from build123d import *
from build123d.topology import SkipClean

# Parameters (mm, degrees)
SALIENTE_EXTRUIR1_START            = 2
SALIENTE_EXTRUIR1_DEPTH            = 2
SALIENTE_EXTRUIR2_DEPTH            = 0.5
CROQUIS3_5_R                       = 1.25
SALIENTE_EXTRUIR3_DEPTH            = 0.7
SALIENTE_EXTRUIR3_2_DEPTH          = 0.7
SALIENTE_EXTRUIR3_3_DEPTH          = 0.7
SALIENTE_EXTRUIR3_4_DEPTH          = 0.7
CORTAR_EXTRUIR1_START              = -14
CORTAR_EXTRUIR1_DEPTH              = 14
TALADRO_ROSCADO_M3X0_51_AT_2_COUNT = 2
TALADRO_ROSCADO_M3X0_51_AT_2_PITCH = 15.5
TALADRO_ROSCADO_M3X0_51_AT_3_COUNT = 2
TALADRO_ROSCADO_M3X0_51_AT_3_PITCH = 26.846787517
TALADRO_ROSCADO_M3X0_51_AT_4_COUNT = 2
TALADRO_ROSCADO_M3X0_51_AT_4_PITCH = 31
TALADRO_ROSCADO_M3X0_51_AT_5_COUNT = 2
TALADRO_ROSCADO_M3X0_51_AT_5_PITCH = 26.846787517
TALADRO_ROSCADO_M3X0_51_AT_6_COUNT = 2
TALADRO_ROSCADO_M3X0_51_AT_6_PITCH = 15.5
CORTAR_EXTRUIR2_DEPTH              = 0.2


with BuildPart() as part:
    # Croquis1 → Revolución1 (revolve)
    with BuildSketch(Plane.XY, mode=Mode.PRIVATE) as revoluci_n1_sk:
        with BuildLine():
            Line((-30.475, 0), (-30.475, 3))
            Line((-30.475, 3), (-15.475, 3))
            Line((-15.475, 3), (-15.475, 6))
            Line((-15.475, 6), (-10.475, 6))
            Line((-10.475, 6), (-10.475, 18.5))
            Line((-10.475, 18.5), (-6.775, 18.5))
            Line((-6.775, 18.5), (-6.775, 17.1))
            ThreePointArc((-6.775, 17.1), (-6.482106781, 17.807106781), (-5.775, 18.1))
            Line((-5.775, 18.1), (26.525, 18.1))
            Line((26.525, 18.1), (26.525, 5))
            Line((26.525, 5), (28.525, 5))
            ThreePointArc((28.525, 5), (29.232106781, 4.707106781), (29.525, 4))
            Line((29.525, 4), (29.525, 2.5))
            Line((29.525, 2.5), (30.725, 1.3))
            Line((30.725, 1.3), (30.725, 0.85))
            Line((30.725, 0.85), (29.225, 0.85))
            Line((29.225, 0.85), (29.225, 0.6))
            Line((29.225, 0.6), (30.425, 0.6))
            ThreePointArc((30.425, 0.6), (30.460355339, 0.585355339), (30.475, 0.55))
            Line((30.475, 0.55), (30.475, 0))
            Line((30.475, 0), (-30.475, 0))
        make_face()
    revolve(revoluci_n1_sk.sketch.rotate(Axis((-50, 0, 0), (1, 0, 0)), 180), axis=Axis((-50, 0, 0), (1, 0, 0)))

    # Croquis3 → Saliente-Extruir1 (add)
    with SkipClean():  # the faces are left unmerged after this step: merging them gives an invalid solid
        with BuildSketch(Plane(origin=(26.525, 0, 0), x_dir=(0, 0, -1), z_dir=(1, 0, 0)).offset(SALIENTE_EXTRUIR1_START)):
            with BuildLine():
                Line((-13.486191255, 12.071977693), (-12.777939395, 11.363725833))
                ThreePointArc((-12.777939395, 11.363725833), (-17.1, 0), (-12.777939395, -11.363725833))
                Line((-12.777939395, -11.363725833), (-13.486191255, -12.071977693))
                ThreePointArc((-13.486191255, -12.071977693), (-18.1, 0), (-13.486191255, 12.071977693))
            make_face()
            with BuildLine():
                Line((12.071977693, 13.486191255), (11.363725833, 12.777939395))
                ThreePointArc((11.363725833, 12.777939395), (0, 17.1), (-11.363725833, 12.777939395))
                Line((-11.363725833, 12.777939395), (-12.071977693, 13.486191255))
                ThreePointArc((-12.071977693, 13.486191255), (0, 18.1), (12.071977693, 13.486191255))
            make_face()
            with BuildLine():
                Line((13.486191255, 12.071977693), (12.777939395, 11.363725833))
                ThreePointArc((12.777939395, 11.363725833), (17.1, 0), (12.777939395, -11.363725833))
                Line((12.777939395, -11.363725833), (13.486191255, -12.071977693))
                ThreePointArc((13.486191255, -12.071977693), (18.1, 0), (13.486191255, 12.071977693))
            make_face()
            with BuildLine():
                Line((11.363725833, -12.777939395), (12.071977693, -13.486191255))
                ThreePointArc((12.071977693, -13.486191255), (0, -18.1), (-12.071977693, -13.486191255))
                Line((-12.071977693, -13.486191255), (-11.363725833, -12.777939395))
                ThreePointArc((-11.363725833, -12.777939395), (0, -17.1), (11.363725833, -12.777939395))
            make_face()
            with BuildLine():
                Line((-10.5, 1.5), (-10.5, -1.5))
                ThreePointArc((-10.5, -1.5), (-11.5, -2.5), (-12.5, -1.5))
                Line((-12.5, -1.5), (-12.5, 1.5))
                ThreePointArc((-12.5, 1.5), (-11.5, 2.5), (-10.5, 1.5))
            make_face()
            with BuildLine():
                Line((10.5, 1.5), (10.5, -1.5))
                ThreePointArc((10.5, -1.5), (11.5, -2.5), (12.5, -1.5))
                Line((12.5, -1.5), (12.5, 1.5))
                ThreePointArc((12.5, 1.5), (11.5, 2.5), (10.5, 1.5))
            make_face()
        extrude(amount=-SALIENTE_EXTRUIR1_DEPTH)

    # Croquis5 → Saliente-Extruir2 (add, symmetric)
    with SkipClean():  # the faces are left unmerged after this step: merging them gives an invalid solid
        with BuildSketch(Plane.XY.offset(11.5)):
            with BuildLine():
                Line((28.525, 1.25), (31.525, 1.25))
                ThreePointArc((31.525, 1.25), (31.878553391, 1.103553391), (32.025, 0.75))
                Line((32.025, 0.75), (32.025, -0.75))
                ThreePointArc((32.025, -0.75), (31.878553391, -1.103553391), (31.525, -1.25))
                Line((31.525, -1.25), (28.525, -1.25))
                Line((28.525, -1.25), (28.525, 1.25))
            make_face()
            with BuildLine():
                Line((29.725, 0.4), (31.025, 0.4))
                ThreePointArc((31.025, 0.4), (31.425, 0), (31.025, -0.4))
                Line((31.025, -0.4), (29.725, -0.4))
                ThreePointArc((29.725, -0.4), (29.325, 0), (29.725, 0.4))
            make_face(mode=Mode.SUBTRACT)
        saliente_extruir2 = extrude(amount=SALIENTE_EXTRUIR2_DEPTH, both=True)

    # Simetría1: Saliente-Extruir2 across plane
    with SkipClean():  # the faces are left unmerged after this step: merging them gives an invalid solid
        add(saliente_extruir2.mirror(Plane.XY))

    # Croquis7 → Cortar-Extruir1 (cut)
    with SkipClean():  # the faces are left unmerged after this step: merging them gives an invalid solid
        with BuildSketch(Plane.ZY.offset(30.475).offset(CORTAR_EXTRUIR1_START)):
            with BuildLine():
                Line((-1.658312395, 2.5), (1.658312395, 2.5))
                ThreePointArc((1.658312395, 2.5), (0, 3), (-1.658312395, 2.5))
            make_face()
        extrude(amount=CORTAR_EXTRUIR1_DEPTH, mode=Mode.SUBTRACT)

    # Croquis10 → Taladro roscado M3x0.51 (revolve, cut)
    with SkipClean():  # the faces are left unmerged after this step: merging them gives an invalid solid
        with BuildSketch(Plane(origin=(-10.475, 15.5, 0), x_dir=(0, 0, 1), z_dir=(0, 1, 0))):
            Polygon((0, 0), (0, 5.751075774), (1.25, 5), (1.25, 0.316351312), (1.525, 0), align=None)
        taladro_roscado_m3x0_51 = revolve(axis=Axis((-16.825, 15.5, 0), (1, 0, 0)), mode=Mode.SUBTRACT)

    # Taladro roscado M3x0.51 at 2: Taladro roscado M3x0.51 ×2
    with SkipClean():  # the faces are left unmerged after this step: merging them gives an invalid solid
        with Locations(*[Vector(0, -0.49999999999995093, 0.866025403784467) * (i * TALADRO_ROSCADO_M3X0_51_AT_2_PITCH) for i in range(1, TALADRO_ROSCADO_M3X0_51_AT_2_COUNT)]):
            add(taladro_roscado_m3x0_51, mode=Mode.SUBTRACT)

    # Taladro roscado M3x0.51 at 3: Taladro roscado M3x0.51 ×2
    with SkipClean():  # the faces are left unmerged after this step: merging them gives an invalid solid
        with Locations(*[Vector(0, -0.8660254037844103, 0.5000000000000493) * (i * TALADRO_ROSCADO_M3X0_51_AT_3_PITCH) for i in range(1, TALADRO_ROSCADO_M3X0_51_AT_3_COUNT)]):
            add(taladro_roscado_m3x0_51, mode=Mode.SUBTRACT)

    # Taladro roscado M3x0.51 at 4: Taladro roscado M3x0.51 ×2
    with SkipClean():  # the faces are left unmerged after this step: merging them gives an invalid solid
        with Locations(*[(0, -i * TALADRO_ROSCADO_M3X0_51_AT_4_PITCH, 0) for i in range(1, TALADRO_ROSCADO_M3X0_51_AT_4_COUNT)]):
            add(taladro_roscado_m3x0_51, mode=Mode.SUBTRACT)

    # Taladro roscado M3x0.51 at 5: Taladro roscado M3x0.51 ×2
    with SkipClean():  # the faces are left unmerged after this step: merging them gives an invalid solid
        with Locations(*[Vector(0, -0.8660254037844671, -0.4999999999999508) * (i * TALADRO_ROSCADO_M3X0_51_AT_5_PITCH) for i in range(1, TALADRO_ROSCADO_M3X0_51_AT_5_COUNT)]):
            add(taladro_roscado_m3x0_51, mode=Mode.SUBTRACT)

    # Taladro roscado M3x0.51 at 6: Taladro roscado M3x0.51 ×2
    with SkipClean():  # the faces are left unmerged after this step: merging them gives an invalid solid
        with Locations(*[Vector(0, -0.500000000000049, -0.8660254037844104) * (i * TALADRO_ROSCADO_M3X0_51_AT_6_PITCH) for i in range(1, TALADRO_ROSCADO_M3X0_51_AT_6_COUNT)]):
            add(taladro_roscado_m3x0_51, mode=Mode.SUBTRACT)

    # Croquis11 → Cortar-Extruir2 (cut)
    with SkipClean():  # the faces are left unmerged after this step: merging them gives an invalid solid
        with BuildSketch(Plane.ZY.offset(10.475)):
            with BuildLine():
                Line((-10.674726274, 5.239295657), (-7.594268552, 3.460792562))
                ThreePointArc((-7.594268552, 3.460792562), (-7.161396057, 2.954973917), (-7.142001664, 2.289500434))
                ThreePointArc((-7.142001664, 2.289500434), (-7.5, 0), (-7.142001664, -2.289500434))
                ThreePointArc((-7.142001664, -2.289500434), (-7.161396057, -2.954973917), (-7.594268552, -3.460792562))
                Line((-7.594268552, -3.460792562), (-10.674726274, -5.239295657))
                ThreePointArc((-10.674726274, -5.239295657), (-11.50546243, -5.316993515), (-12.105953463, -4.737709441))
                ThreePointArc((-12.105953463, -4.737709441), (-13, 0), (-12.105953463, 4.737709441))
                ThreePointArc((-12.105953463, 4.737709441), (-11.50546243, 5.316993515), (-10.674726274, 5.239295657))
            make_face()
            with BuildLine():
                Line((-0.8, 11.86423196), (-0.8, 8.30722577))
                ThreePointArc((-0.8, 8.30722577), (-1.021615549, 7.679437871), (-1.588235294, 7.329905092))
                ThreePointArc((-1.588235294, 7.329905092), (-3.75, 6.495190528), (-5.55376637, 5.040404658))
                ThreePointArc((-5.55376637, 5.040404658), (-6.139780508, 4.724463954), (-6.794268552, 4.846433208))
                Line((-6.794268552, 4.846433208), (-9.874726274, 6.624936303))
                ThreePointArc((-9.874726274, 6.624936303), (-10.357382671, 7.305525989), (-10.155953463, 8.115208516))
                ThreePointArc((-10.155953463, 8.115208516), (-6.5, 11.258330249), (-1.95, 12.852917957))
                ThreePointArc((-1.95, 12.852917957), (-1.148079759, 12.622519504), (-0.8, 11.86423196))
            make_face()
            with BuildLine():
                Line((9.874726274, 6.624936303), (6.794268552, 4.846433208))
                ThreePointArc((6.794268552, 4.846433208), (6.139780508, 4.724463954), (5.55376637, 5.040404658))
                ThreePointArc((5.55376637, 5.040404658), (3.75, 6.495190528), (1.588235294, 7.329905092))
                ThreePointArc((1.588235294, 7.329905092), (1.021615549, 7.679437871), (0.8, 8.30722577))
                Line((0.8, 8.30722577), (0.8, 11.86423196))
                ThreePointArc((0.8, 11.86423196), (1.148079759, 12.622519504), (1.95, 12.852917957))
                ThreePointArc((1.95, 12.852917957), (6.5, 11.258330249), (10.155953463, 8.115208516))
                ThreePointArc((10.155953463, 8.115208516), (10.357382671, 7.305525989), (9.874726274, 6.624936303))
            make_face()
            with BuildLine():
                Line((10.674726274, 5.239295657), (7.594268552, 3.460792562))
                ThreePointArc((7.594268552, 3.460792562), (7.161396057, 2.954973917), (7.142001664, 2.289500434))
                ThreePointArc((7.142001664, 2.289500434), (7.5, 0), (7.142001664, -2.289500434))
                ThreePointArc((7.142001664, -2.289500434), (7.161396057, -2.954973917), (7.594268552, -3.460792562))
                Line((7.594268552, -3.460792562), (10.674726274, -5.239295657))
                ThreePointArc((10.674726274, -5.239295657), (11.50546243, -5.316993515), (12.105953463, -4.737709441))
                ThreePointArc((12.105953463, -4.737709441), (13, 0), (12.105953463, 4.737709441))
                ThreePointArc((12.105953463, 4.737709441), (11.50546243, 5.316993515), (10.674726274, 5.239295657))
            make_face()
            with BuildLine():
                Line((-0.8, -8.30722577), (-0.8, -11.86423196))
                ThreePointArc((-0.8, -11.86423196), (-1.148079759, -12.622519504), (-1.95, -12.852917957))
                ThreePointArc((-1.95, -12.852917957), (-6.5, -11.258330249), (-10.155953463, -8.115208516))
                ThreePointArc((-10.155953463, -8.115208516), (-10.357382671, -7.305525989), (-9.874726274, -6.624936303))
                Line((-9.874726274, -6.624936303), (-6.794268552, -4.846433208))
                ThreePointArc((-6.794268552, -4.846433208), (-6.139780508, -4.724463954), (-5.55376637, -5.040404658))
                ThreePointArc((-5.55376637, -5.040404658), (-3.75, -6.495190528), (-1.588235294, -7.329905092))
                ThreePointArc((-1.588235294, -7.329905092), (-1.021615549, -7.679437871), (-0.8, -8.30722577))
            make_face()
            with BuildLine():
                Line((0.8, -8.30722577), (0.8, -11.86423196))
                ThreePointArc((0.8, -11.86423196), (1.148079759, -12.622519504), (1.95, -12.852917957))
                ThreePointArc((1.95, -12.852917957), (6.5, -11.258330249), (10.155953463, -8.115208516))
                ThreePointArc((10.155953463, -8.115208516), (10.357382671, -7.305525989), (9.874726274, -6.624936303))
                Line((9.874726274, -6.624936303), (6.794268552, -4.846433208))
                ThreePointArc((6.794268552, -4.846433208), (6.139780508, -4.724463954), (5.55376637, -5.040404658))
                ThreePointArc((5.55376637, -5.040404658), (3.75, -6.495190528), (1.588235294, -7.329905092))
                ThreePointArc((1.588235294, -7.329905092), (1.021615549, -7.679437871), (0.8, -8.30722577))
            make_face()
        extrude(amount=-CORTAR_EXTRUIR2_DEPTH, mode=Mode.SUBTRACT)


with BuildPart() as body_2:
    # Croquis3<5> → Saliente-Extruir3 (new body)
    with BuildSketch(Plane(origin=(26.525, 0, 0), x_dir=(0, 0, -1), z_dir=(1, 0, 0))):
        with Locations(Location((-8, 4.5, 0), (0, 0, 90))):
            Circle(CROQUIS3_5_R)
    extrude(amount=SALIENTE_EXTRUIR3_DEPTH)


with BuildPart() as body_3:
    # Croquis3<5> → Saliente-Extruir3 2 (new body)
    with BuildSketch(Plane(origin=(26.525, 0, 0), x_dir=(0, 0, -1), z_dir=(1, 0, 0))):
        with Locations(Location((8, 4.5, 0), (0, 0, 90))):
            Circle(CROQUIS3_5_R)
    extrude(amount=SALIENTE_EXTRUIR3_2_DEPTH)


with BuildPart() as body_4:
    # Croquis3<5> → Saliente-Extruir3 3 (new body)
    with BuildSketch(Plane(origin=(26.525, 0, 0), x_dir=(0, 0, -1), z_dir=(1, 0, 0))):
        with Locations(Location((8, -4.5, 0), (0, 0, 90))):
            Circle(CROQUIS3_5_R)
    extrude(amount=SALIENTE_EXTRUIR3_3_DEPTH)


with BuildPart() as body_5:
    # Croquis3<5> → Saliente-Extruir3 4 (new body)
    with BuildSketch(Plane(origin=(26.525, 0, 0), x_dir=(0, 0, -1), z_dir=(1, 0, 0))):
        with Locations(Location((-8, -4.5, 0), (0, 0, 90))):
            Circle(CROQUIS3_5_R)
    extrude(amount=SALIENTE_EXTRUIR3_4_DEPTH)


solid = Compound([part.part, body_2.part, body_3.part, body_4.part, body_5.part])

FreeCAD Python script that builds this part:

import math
import FreeCAD as App
import Part
import Sketcher
from FreeCAD import Vector
Q = App.Units.Quantity

doc = App.newDocument("Part")
params = doc.addObject("Spreadsheet::Sheet", "Params")
for row, (alias, value) in enumerate([
    ("sketch1_radius", "1 mm"),
    ("sketch1_width", "2 mm"),
    ("sketch1_width2", "5 mm"),
    ("sketch1_width3", "15 mm"),
    ("sketch1_height", "3 mm"),
    ("revolution_angle", "360 deg"),
    ("sketch2_radius", "1 mm"),
    ("sketch2_radius2", "18.1 mm"),
    ("sketch2_radius3", "17.1 mm"),
    ("sketch2_width", "3 mm"),
    ("pad1_length", "2 mm"),
    ("sketch3_radius", "0.5 mm"),
    ("sketch3_radius2", "0.4 mm"),
    ("sketch3_width", "3 mm"),
    ("sketch3_width2", "1.3 mm"),
    ("sketch3_height", "2.5 mm"),
    ("pad2_length", "1 mm"),
    ("sketch4_radius", "3 mm"),
    ("pocket1_length", "14 mm"),
    ("groove_angle", "360 deg"),
    ("linearpattern_pitch", "15.5 mm"),
    ("linearpattern2_pitch", "26.846788 mm"),
    ("linearpattern3_pitch", "31 mm"),
    ("linearpattern4_pitch", "26.846788 mm"),
    ("linearpattern5_pitch", "15.5 mm"),
    ("sketch6_radius", "1 mm"),
    ("sketch6_radius2", "13 mm"),
    ("sketch6_radius3", "7.5 mm"),
    ("pocket2_length", "0.2 mm"),
    ("sketch7_diameter", "2.5 mm"),
    ("pad3_length", "0.7 mm"),
    ("sketch8_diameter", "2.5 mm"),
    ("pad4_length", "0.7 mm"),
    ("sketch9_diameter", "2.5 mm"),
    ("pad5_length", "0.7 mm"),
    ("sketch10_diameter", "2.5 mm"),
    ("pad6_length", "0.7 mm"),
], start=1):
    params.set(f"A{row}", alias)
    params.set(f"B{row}", "=" + value)
    params.setAlias(f"B{row}", alias)

body = doc.addObject("PartDesign::Body", "Body")

sketch1 = body.newObject("Sketcher::SketchObject", "Sketch")
sketch1.AttachmentSupport = (doc.getObject("XY_Plane"), [""])
sketch1.MapMode = "FlatFace"
sketch1.addGeometry([
    Part.LineSegment(Vector(-30.475, 3, 0), Vector(-30.475, 0, 0)),
    Part.LineSegment(Vector(-30.475, 0, 0), Vector(30.475, 0, 0)),
    Part.LineSegment(Vector(30.475, 0, 0), Vector(30.475, 0.55, 0)),
    Part.ArcOfCircle(Part.Circle(Vector(30.425, 0.55, 0), Vector(0, 0, 1), 0.05), math.radians(0), math.radians(90)),
    Part.LineSegment(Vector(30.425, 0.6, 0), Vector(29.225, 0.6, 0)),
    Part.LineSegment(Vector(29.225, 0.6, 0), Vector(29.225, 0.85, 0)),
    Part.LineSegment(Vector(29.225, 0.85, 0), Vector(30.725, 0.85, 0)),
    Part.LineSegment(Vector(30.725, 0.85, 0), Vector(30.725, 1.3, 0)),
    Part.LineSegment(Vector(30.725, 1.3, 0), Vector(29.525, 2.5, 0)),
    Part.LineSegment(Vector(29.525, 2.5, 0), Vector(29.525, 4, 0)),
    Part.ArcOfCircle(Part.Circle(Vector(28.525, 4, 0), Vector(0, 0, 1), 1), math.radians(0), math.radians(90)),
    Part.LineSegment(Vector(28.525, 5, 0), Vector(26.525, 5, 0)),
    Part.LineSegment(Vector(26.525, 5, 0), Vector(26.525, 18.1, 0)),
    Part.LineSegment(Vector(26.525, 18.1, 0), Vector(-5.775, 18.1, 0)),
    Part.ArcOfCircle(Part.Circle(Vector(-5.775, 17.1, 0), Vector(0, 0, 1), 1), math.radians(90), math.radians(180)),
    Part.LineSegment(Vector(-6.775, 17.1, 0), Vector(-6.775, 18.5, 0)),
    Part.LineSegment(Vector(-6.775, 18.5, 0), Vector(-10.475, 18.5, 0)),
    Part.LineSegment(Vector(-10.475, 18.5, 0), Vector(-10.475, 6, 0)),
    Part.LineSegment(Vector(-10.475, 6, 0), Vector(-15.475, 6, 0)),
    Part.LineSegment(Vector(-15.475, 6, 0), Vector(-15.475, 3, 0)),
    Part.LineSegment(Vector(-15.475, 3, 0), Vector(-30.475, 3, 0)),
], False)
sketch1.addConstraint([
    Sketcher.Constraint("Coincident", 0, 2, 1, 1),
    Sketcher.Constraint("Coincident", 1, 2, 2, 1),
    Sketcher.Constraint("Tangent", 2, 2, 3, 1),
    Sketcher.Constraint("Tangent", 3, 2, 4, 1),
    Sketcher.Constraint("Coincident", 4, 2, 5, 1),
    Sketcher.Constraint("Coincident", 5, 2, 6, 1),
    Sketcher.Constraint("Coincident", 6, 2, 7, 1),
    Sketcher.Constraint("Coincident", 7, 2, 8, 1),
    Sketcher.Constraint("Coincident", 8, 2, 9, 1),
    Sketcher.Constraint("Tangent", 9, 2, 10, 1),
    Sketcher.Constraint("Tangent", 10, 2, 11, 1),
    Sketcher.Constraint("Coincident", 11, 2, 12, 1),
    Sketcher.Constraint("Coincident", 12, 2, 13, 1),
    Sketcher.Constraint("Tangent", 13, 2, 14, 1),
    Sketcher.Constraint("Tangent", 14, 2, 15, 1),
    Sketcher.Constraint("Coincident", 15, 2, 16, 1),
    Sketcher.Constraint("Coincident", 16, 2, 17, 1),
    Sketcher.Constraint("Coincident", 17, 2, 18, 1),
    Sketcher.Constraint("Coincident", 18, 2, 19, 1),
    Sketcher.Constraint("Coincident", 19, 2, 20, 1),
    Sketcher.Constraint("Coincident", 20, 2, 0, 1),
    Sketcher.Constraint("Vertical", 0),
    Sketcher.Constraint("Horizontal", 1),
    Sketcher.Constraint("Vertical", 2),
    Sketcher.Constraint("Horizontal", 4),
    Sketcher.Constraint("Vertical", 5),
    Sketcher.Constraint("Horizontal", 6),
    Sketcher.Constraint("Vertical", 7),
    Sketcher.Constraint("Vertical", 9),
    Sketcher.Constraint("Horizontal", 11),
    Sketcher.Constraint("Vertical", 12),
    Sketcher.Constraint("Horizontal", 13),
    Sketcher.Constraint("Vertical", 15),
    Sketcher.Constraint("Horizontal", 16),
    Sketcher.Constraint("Vertical", 17),
    Sketcher.Constraint("Horizontal", 18),
    Sketcher.Constraint("Vertical", 19),
    Sketcher.Constraint("Horizontal", 20),
    Sketcher.Constraint("Equal", 10, 14),
    Sketcher.Constraint("Symmetric", 0, 2, 1, 2, -1, 1),
    Sketcher.Constraint("Equal", 6, 9),
    Sketcher.Constraint("Equal", 0, 19),
    Sketcher.Constraint("Radius", 10, 1.0),
    Sketcher.Constraint("DistanceX", 11, 2, 11, 1, 2.0),
    Sketcher.Constraint("DistanceX", 18, 2, 18, 1, 5.0),
    Sketcher.Constraint("DistanceX", 20, 2, 20, 1, 15.0),
    Sketcher.Constraint("DistanceY", 0, 2, 0, 1, 3.0),
    Sketcher.Constraint("Angle", 8, Q("135 deg")),
    Sketcher.Constraint("Radius", 3, 0.05),
    Sketcher.Constraint("DistanceX", 4, 2, 4, 1, 1.2),
    Sketcher.Constraint("DistanceX", 6, 1, 6, 2, 1.5),
    Sketcher.Constraint("DistanceX", 13, 2, 13, 1, 32.3),
    Sketcher.Constraint("DistanceX", 16, 2, 16, 1, 3.7),
    Sketcher.Constraint("DistanceY", 12, 1, 12, 2, 13.1),
    Sketcher.Constraint("DistanceY", 15, 1, 15, 2, 1.4),
    Sketcher.Constraint("DistanceY", 17, 2, 17, 1, 12.5),
    Sketcher.Constraint("DistanceX", 1, 1, 1, 2, 60.95),
    Sketcher.Constraint("DistanceY", 2, 1, 2, 2, 0.55),
    Sketcher.Constraint("DistanceY", 5, 1, 5, 2, 0.25),
])
sketch1.setExpression("Constraints[42]", "Params.sketch1_radius")
sketch1.setExpression("Constraints[43]", "Params.sketch1_width")
sketch1.setExpression("Constraints[44]", "Params.sketch1_width2")
sketch1.setExpression("Constraints[45]", "Params.sketch1_width3")
sketch1.setExpression("Constraints[46]", "Params.sketch1_height")
revolution = body.newObject("PartDesign::Revolution", "Revolution")
revolution.Profile = sketch1
revolution.ReferenceAxis = (sketch1, ["H_Axis"])
revolution.setExpression("Angle", "Params.revolution_angle")

sketch2 = body.newObject("Sketcher::SketchObject", "Sketch001")
sketch2.AttachmentSupport = (doc.getObject("YZ_Plane"), [""])
sketch2.MapMode = "FlatFace"
sketch2.AttachmentOffset = App.Placement(Vector(0, 0, 28.525), App.Rotation())
sketch2.addGeometry([
    Part.LineSegment(Vector(11.363726, 12.777939, 0), Vector(12.071978, 13.486191, 0)),
    Part.ArcOfCircle(Part.Circle(Vector(0, 0, 0), Vector(0, 0, 1), 18.1), math.radians(48.167125), math.radians(131.832875)),
    Part.LineSegment(Vector(-12.071978, 13.486191, 0), Vector(-11.363726, 12.777939, 0)),
    Part.ArcOfCircle(Part.Circle(Vector(0, 0, 0), Vector(0, 0, 1), 17.1), math.radians(48.352543), math.radians(131.647457)),
    Part.LineSegment(Vector(12.777939, -11.363726, 0), Vector(13.486191, -12.071978, 0)),
    Part.ArcOfCircle(Part.Circle(Vector(0, 0, 0), Vector(0, 0, 1), 18.1), math.radians(-41.832875), math.radians(41.832875)),
    Part.LineSegment(Vector(13.486191, 12.071978, 0), Vector(12.777939, 11.363726, 0)),
    Part.ArcOfCircle(Part.Circle(Vector(0, 0, 0), Vector(0, 0, 1), 17.1), math.radians(-41.647457), math.radians(41.647457)),
    Part.LineSegment(Vector(12.071978, -13.486191, 0), Vector(11.363726, -12.777939, 0)),
    Part.ArcOfCircle(Part.Circle(Vector(0, 0, 0), Vector(0, 0, 1), 17.1), math.radians(-131.647457), math.radians(-48.352543)),
    Part.LineSegment(Vector(-11.363726, -12.777939, 0), Vector(-12.071978, -13.486191, 0)),
    Part.ArcOfCircle(Part.Circle(Vector(0, 0, 0), Vector(0, 0, 1), 18.1), math.radians(-131.832875), math.radians(-48.167125)),
    Part.LineSegment(Vector(-13.486191, -12.071978, 0), Vector(-12.777939, -11.363726, 0)),
    Part.ArcOfCircle(Part.Circle(Vector(0, 0, 0), Vector(0, 0, 1), 17.1), math.radians(138.352543), math.radians(221.647457)),
    Part.LineSegment(Vector(-12.777939, 11.363726, 0), Vector(-13.486191, 12.071978, 0)),
    Part.ArcOfCircle(Part.Circle(Vector(0, 0, 0), Vector(0, 0, 1), 18.1), math.radians(138.167125), math.radians(221.832875)),
    Part.LineSegment(Vector(-1.5, 10.5, 0), Vector(1.5, 10.5, 0)),
    Part.ArcOfCircle(Part.Circle(Vector(1.5, 11.5, 0), Vector(0, 0, 1), 1), math.radians(-90), math.radians(90)),
    Part.LineSegment(Vector(1.5, 12.5, 0), Vector(-1.5, 12.5, 0)),
    Part.ArcOfCircle(Part.Circle(Vector(-1.5, 11.5, 0), Vector(0, 0, 1), 1), math.radians(90), math.radians(270)),
    Part.LineSegment(Vector(1.5, -10.5, 0), Vector(-1.5, -10.5, 0)),
    Part.ArcOfCircle(Part.Circle(Vector(-1.5, -11.5, 0), Vector(0, 0, 1), 1), math.radians(90), math.radians(270)),
    Part.LineSegment(Vector(-1.5, -12.5, 0), Vector(1.5, -12.5, 0)),
    Part.ArcOfCircle(Part.Circle(Vector(1.5, -11.5, 0), Vector(0, 0, 1), 1), math.radians(-90), math.radians(90)),
], False)
sketch2.addConstraint([
    Sketcher.Constraint("Coincident", 0, 2, 1, 1),
    Sketcher.Constraint("Coincident", 1, 2, 2, 1),
    Sketcher.Constraint("Coincident", 2, 2, 3, 2),
    Sketcher.Constraint("Coincident", 3, 1, 0, 1),
    Sketcher.Constraint("Coincident", 4, 2, 5, 1),
    Sketcher.Constraint("Coincident", 5, 2, 6, 1),
    Sketcher.Constraint("Coincident", 6, 2, 7, 2),
    Sketcher.Constraint("Coincident", 7, 1, 4, 1),
    Sketcher.Constraint("Coincident", 8, 2, 9, 2),
    Sketcher.Constraint("Coincident", 9, 1, 10, 1),
    Sketcher.Constraint("Coincident", 10, 2, 11, 1),
    Sketcher.Constraint("Coincident", 11, 2, 8, 1),
    Sketcher.Constraint("Coincident", 12, 2, 13, 2),
    Sketcher.Constraint("Coincident", 13, 1, 14, 1),
    Sketcher.Constraint("Coincident", 14, 2, 15, 1),
    Sketcher.Constraint("Coincident", 15, 2, 12, 1),
    Sketcher.Constraint("Tangent", 16, 2, 17, 1),
    Sketcher.Constraint("Tangent", 17, 2, 18, 1),
    Sketcher.Constraint("Tangent", 18, 2, 19, 1),
    Sketcher.Constraint("Tangent", 19, 2, 16, 1),
    Sketcher.Constraint("Tangent", 20, 2, 21, 1),
    Sketcher.Constraint("Tangent", 21, 2, 22, 1),
    Sketcher.Constraint("Tangent", 22, 2, 23, 1),
    Sketcher.Constraint("Tangent", 23, 2, 20, 1),
    Sketcher.Constraint("Horizontal", 16),
    Sketcher.Constraint("Horizontal", 18),
    Sketcher.Constraint("Horizontal", 20),
    Sketcher.Constraint("Horizontal", 22),
    Sketcher.Constraint("Coincident", 1, 3, -1, 1),
    Sketcher.Constraint("Coincident", 3, 3, -1, 1),
    Sketcher.Constraint("Coincident", 5, 3, -1, 1),
    Sketcher.Constraint("Coincident", 7, 3, -1, 1),
    Sketcher.Constraint("Coincident", 9, 3, -1, 1),
    Sketcher.Constraint("Coincident", 11, 3, -1, 1),
    Sketcher.Constraint("Coincident", 13, 3, -1, 1),
    Sketcher.Constraint("Coincident", 15, 3, -1, 1),
    Sketcher.Constraint("Equal", 1, 5),
    Sketcher.Constraint("Equal", 3, 7),
    Sketcher.Constraint("Equal", 7, 9),
    Sketcher.Constraint("Equal", 5, 11),
    Sketcher.Constraint("Equal", 9, 13),
    Sketcher.Constraint("Equal", 11, 15),
    Sketcher.Constraint("Equal", 19, 21),
    Sketcher.Constraint("Symmetric", 17, 3, 21, 3, -1, 1),
    Sketcher.Constraint("Perpendicular", 0, 2),
    Sketcher.Constraint("Parallel", 2, 4),
    Sketcher.Constraint("Perpendicular", 4, 6),
    Sketcher.Constraint("Perpendicular", 6, 8),
    Sketcher.Constraint("Perpendicular", 8, 10),
    Sketcher.Constraint("Parallel", 10, 12),
    Sketcher.Constraint("Perpendicular", 12, 14),
    Sketcher.Constraint("Horizontal", 0, 2, 1, 2),
    Sketcher.Constraint("Horizontal", 2, 2, 3, 1),
    Sketcher.Constraint("Horizontal", 8, 2, 9, 1),
    Sketcher.Constraint("Horizontal", 7, 1, 12, 2),
    Sketcher.Constraint("Horizontal", 6, 2, 13, 1),
    Sketcher.Constraint("Vertical", 19, 3, 21, 3),
    Sketcher.Constraint("Vertical", 17, 3, 23, 3),
    Sketcher.Constraint("Vertical", 4, 2, 5, 2),
    Sketcher.Constraint("Vertical", 3, 1, 8, 2),
    Sketcher.Constraint("Radius", 17, 1.0),
    Sketcher.Constraint("Radius", 1, 18.1),
    Sketcher.Constraint("Radius", 3, 17.1),
    Sketcher.Constraint("DistanceX", 16, 1, 16, 2, 3.0),
    Sketcher.Constraint("DistanceY", -1, 1, 17, 3, 11.5),
    Sketcher.Constraint("DistanceY", -1, 1, 0, 2, 13.486191),
    Sketcher.Constraint("DistanceX", -1, 1, 4, 2, 13.486191),
])
sketch2.setExpression("Constraints[60]", "Params.sketch2_radius")
sketch2.setExpression("Constraints[61]", "Params.sketch2_radius2")
sketch2.setExpression("Constraints[62]", "Params.sketch2_radius3")
sketch2.setExpression("Constraints[63]", "Params.sketch2_width")
pad1 = body.newObject("PartDesign::Pad", "Pad")
pad1.Profile = sketch2
pad1.setExpression("Length", "Params.pad1_length")
pad1.Reversed = True

sketch3 = body.newObject("Sketcher::SketchObject", "Sketch002")
sketch3.AttachmentSupport = (doc.getObject("XY_Plane"), [""])
sketch3.MapMode = "FlatFace"
sketch3.AttachmentOffset = App.Placement(Vector(0, 0, 11.5), App.Rotation())
sketch3.addGeometry([
    Part.LineSegment(Vector(31.525, 1.25, 0), Vector(28.525, 1.25, 0)),
    Part.LineSegment(Vector(28.525, 1.25, 0), Vector(28.525, -1.25, 0)),
    Part.LineSegment(Vector(28.525, -1.25, 0), Vector(31.525, -1.25, 0)),
    Part.ArcOfCircle(Part.Circle(Vector(31.525, -0.75, 0), Vector(0, 0, 1), 0.5), math.radians(-90), math.radians(0)),
    Part.LineSegment(Vector(32.025, -0.75, 0), Vector(32.025, 0.75, 0)),
    Part.ArcOfCircle(Part.Circle(Vector(31.525, 0.75, 0), Vector(0, 0, 1), 0.5), math.radians(0), math.radians(90)),
    Part.LineSegment(Vector(29.725, 0.4, 0), Vector(31.025, 0.4, 0)),
    Part.ArcOfCircle(Part.Circle(Vector(31.025, 0, 0), Vector(0, 0, 1), 0.4), math.radians(-90), math.radians(90)),
    Part.LineSegment(Vector(31.025, -0.4, 0), Vector(29.725, -0.4, 0)),
    Part.ArcOfCircle(Part.Circle(Vector(29.725, 0, 0), Vector(0, 0, 1), 0.4), math.radians(90), math.radians(270)),
], False)
sketch3.addConstraint([
    Sketcher.Constraint("Coincident", 0, 2, 1, 1),
    Sketcher.Constraint("Coincident", 1, 2, 2, 1),
    Sketcher.Constraint("Tangent", 2, 2, 3, 1),
    Sketcher.Constraint("Tangent", 3, 2, 4, 1),
    Sketcher.Constraint("Tangent", 4, 2, 5, 1),
    Sketcher.Constraint("Tangent", 5, 2, 0, 1),
    Sketcher.Constraint("Tangent", 6, 2, 7, 2),
    Sketcher.Constraint("Tangent", 7, 1, 8, 1),
    Sketcher.Constraint("Tangent", 8, 2, 9, 2),
    Sketcher.Constraint("Tangent", 9, 1, 6, 1),
    Sketcher.Constraint("Horizontal", 0),
    Sketcher.Constraint("Vertical", 1),
    Sketcher.Constraint("Horizontal", 2),
    Sketcher.Constraint("Vertical", 4),
    Sketcher.Constraint("Horizontal", 6),
    Sketcher.Constraint("Horizontal", 8),
    Sketcher.Constraint("Equal", 3, 5),
    Sketcher.Constraint("PointOnObject", 7, 3, -1),
    Sketcher.Constraint("Radius", 3, 0.5),
    Sketcher.Constraint("Radius", 7, 0.4),
    Sketcher.Constraint("DistanceX", 0, 2, 0, 1, 3.0),
    Sketcher.Constraint("DistanceX", 6, 1, 6, 2, 1.3),
    Sketcher.Constraint("DistanceY", 1, 2, 1, 1, 2.5),
    Sketcher.Constraint("DistanceX", 7, 3, 3, 2, 1.0),
    Sketcher.Constraint("DistanceY", 3, 3, -1, 1, 0.75),
    Sketcher.Constraint("DistanceX", -1, 1, 3, 3, 31.525),
])
sketch3.setExpression("Constraints[18]", "Params.sketch3_radius")
sketch3.setExpression("Constraints[19]", "Params.sketch3_radius2")
sketch3.setExpression("Constraints[20]", "Params.sketch3_width")
sketch3.setExpression("Constraints[21]", "Params.sketch3_width2")
sketch3.setExpression("Constraints[22]", "Params.sketch3_height")
pad2 = body.newObject("PartDesign::Pad", "Pad001")
pad2.Profile = sketch3
pad2.setExpression("Length", "Params.pad2_length")
pad2.Midplane = True
doc.recompute()

mirrored = body.newObject("PartDesign::Mirrored", "Mirrored")
mirrored.Originals = [pad2]
mirrored.MirrorPlane = (doc.getObject("XY_Plane"), [""])
body.Tip = mirrored

sketch4 = body.newObject("Sketcher::SketchObject", "Sketch003")
sketch4.AttachmentSupport = (doc.getObject("YZ_Plane"), [""])
sketch4.MapMode = "FlatFace"
sketch4.AttachmentOffset = App.Placement(Vector(0, 0, -16.475), App.Rotation())
sketch4.addGeometry([
    Part.LineSegment(Vector(2.5, -1.658312, 0), Vector(2.5, 1.658312, 0)),
    Part.ArcOfCircle(Part.Circle(Vector(0, 0, 0), Vector(0, 0, 1), 3), math.radians(-33.55731), math.radians(33.55731)),
], False)
sketch4.addConstraint([
    Sketcher.Constraint("Coincident", 0, 1, 1, 1),
    Sketcher.Constraint("Coincident", 1, 2, 0, 2),
    Sketcher.Constraint("Vertical", 0),
    Sketcher.Constraint("Coincident", 1, 3, -1, 1),
    Sketcher.Constraint("Radius", 1, 3.0),
    Sketcher.Constraint("DistanceX", -1, 1, 0, 1, 2.5),
])
sketch4.setExpression("Constraints[4]", "Params.sketch4_radius")
pocket1 = body.newObject("PartDesign::Pocket", "Pocket")
pocket1.Profile = sketch4
pocket1.setExpression("Length", "Params.pocket1_length")

sketch5 = body.newObject("Sketcher::SketchObject", "Sketch004")
sketch5.AttachmentSupport = (doc.getObject("XZ_Plane"), [""])
sketch5.MapMode = "FlatFace"
sketch5.AttachmentOffset = App.Placement(Vector(0, 0, -15.5), App.Rotation())
sketch5.addGeometry([
    Part.LineSegment(Vector(-4.723924, 0, 0), Vector(-10.475, 0, 0)),
    Part.LineSegment(Vector(-10.475, 0, 0), Vector(-10.475, 1.525, 0)),
    Part.LineSegment(Vector(-10.475, 1.525, 0), Vector(-10.158649, 1.25, 0)),
    Part.LineSegment(Vector(-10.158649, 1.25, 0), Vector(-5.475, 1.25, 0)),
    Part.LineSegment(Vector(-5.475, 1.25, 0), Vector(-4.723924, 0, 0)),
], False)
sketch5.addConstraint([
    Sketcher.Constraint("Coincident", 0, 2, 1, 1),
    Sketcher.Constraint("Coincident", 1, 2, 2, 1),
    Sketcher.Constraint("Coincident", 2, 2, 3, 1),
    Sketcher.Constraint("Coincident", 3, 2, 4, 1),
    Sketcher.Constraint("Coincident", 4, 2, 0, 1),
    Sketcher.Constraint("Horizontal", 0),
    Sketcher.Constraint("Vertical", 1),
    Sketcher.Constraint("Horizontal", 3),
    Sketcher.Constraint("PointOnObject", 0, 2, -1),
    Sketcher.Constraint("Angle", 2, Q("-41 deg")),
    Sketcher.Constraint("Angle", 4, Q("-59 deg")),
    Sketcher.Constraint("DistanceX", 1, 2, 3, 2, 5.0),
    Sketcher.Constraint("DistanceY", 1, 1, 1, 2, 1.525),
    Sketcher.Constraint("DistanceY", -1, 1, 2, 2, 1.25),
    Sketcher.Constraint("DistanceX", 0, 2, -1, 1, 10.475),
])
groove = body.newObject("PartDesign::Groove", "Groove")
groove.Profile = sketch5
groove.ReferenceAxis = (sketch5, ["H_Axis"])
groove.setExpression("Angle", "Params.groove_angle")
doc.recompute()

datumline = body.newObject("PartDesign::Line", "DatumLine")
datumline.Placement = App.Placement(Vector(0, 0, 0), App.Rotation(Vector(0, 0, 1), Vector(0, -0.5, 0.866025404)))
linearpattern = body.newObject("PartDesign::LinearPattern", "LinearPattern")
linearpattern.Originals = [groove]
linearpattern.Direction = (datumline, [""])
linearpattern.Mode = "offset"
linearpattern.setExpression("Offset", "Params.linearpattern_pitch")
linearpattern.Occurrences = 2
body.Tip = linearpattern
doc.recompute()

datumline2 = body.newObject("PartDesign::Line", "DatumLine001")
datumline2.Placement = App.Placement(Vector(0, 0, 0), App.Rotation(Vector(0, 0, 1), Vector(0, -0.866025404, 0.5)))
linearpattern2 = body.newObject("PartDesign::LinearPattern", "LinearPattern001")
linearpattern2.Originals = [groove]
linearpattern2.Direction = (datumline2, [""])
linearpattern2.Mode = "offset"
linearpattern2.setExpression("Offset", "Params.linearpattern2_pitch")
linearpattern2.Occurrences = 2
body.Tip = linearpattern2
doc.recompute()

linearpattern3 = body.newObject("PartDesign::LinearPattern", "LinearPattern002")
linearpattern3.Originals = [groove]
linearpattern3.Direction = (doc.getObject("Y_Axis"), [""])
linearpattern3.Mode = "offset"
linearpattern3.setExpression("Offset", "Params.linearpattern3_pitch")
linearpattern3.Occurrences = 2
linearpattern3.Reversed = True
body.Tip = linearpattern3
doc.recompute()

datumline3 = body.newObject("PartDesign::Line", "DatumLine002")
datumline3.Placement = App.Placement(Vector(0, 0, 0), App.Rotation(Vector(0, 0, 1), Vector(0, -0.866025404, -0.5)))
linearpattern4 = body.newObject("PartDesign::LinearPattern", "LinearPattern003")
linearpattern4.Originals = [groove]
linearpattern4.Direction = (datumline3, [""])
linearpattern4.Mode = "offset"
linearpattern4.setExpression("Offset", "Params.linearpattern4_pitch")
linearpattern4.Occurrences = 2
body.Tip = linearpattern4
doc.recompute()

datumline4 = body.newObject("PartDesign::Line", "DatumLine003")
datumline4.Placement = App.Placement(Vector(0, 0, 0), App.Rotation(Vector(0, 0, 1), Vector(0, -0.5, -0.866025404)))
linearpattern5 = body.newObject("PartDesign::LinearPattern", "LinearPattern004")
linearpattern5.Originals = [groove]
linearpattern5.Direction = (datumline4, [""])
linearpattern5.Mode = "offset"
linearpattern5.setExpression("Offset", "Params.linearpattern5_pitch")
linearpattern5.Occurrences = 2
body.Tip = linearpattern5

sketch6 = body.newObject("Sketcher::SketchObject", "Sketch005")
sketch6.AttachmentSupport = (doc.getObject("YZ_Plane"), [""])
sketch6.MapMode = "FlatFace"
sketch6.AttachmentOffset = App.Placement(Vector(0, 0, -10.475), App.Rotation())
sketch6.addGeometry([
    Part.LineSegment(Vector(3.460793, -7.594269, 0), Vector(5.239296, -10.674726, 0)),
    Part.ArcOfCircle(Part.Circle(Vector(4.37327, -11.174726, 0), Vector(0, 0, 1), 1), math.radians(-68.626927), math.radians(30)),
    Part.ArcOfCircle(Part.Circle(Vector(0, 0, 0), Vector(0, 0, 1), 13), math.radians(-111.373073), math.radians(-68.626927)),
    Part.ArcOfCircle(Part.Circle(Vector(-4.37327, -11.174726, 0), Vector(0, 0, 1), 1), math.radians(150), math.radians(248.626927)),
    Part.LineSegment(Vector(-5.239296, -10.674726, 0), Vector(-3.460793, -7.594269, 0)),
    Part.ArcOfCircle(Part.Circle(Vector(-2.594767, -8.094269, 0), Vector(0, 0, 1), 1), math.radians(72.225788), math.radians(150)),
    Part.ArcOfCircle(Part.Circle(Vector(0, 0, 0), Vector(0, 0, 1), 7.5), math.radians(-107.774211), math.radians(-72.225789)),
    Part.ArcOfCircle(Part.Circle(Vector(2.594767, -8.094269, 0), Vector(0, 0, 1), 1), math.radians(30), math.radians(107.774212)),
    Part.LineSegment(Vector(8.307226, -0.8, 0), Vector(11.864232, -0.8, 0)),
    Part.ArcOfCircle(Part.Circle(Vector(11.864232, -1.8, 0), Vector(0, 0, 1), 1), math.radians(-8.626927), math.radians(90)),
    Part.ArcOfCircle(Part.Circle(Vector(0, 0, 0), Vector(0, 0, 1), 13), math.radians(-51.373073), math.radians(-8.626927)),
    Part.ArcOfCircle(Part.Circle(Vector(7.490962, -9.374726, 0), Vector(0, 0, 1), 1), math.radians(-150), math.radians(-51.373073)),
    Part.LineSegment(Vector(6.624936, -9.874726, 0), Vector(4.846433, -6.794269, 0)),
    Part.ArcOfCircle(Part.Circle(Vector(5.712459, -6.294269, 0), Vector(0, 0, 1), 1), math.radians(132.225789), math.radians(210)),
    Part.ArcOfCircle(Part.Circle(Vector(0, 0, 0), Vector(0, 0, 1), 7.5), math.radians(-47.774211), math.radians(-12.225789)),
    Part.ArcOfCircle(Part.Circle(Vector(8.307226, -1.8, 0), Vector(0, 0, 1), 1), math.radians(90), math.radians(167.774211)),
    Part.LineSegment(Vector(4.846433, 6.794269, 0), Vector(6.624936, 9.874726, 0)),
    Part.ArcOfCircle(Part.Circle(Vector(7.490962, 9.374726, 0), Vector(0, 0, 1), 1), math.radians(51.373073), math.radians(150)),
    Part.ArcOfCircle(Part.Circle(Vector(0, 0, 0), Vector(0, 0, 1), 13), math.radians(8.626927), math.radians(51.373073)),
    Part.ArcOfCircle(Part.Circle(Vector(11.864232, 1.8, 0), Vector(0, 0, 1), 1), math.radians(-90), math.radians(8.626927)),
    Part.LineSegment(Vector(11.864232, 0.8, 0), Vector(8.307226, 0.8, 0)),
    Part.ArcOfCircle(Part.Circle(Vector(8.307226, 1.8, 0), Vector(0, 0, 1), 1), math.radians(-167.774211), math.radians(-90)),
    Part.ArcOfCircle(Part.Circle(Vector(0, 0, 0), Vector(0, 0, 1), 7.5), math.radians(12.225789), math.radians(47.774211)),
    Part.ArcOfCircle(Part.Circle(Vector(5.712459, 6.294269, 0), Vector(0, 0, 1), 1), math.radians(150), math.radians(227.774211)),
    Part.LineSegment(Vector(5.239296, 10.674726, 0), Vector(3.460793, 7.594269, 0)),
    Part.ArcOfCircle(Part.Circle(Vector(2.594767, 8.094269, 0), Vector(0, 0, 1), 1), math.radians(-107.774212), math.radians(-30)),
    Part.ArcOfCircle(Part.Circle(Vector(0, 0, 0), Vector(0, 0, 1), 7.5), math.radians(72.225789), math.radians(107.774211)),
    Part.ArcOfCircle(Part.Circle(Vector(-2.594767, 8.094269, 0), Vector(0, 0, 1), 1), math.radians(-150), math.radians(-72.225788)),
    Part.LineSegment(Vector(-3.460793, 7.594269, 0), Vector(-5.239296, 10.674726, 0)),
    Part.ArcOfCircle(Part.Circle(Vector(-4.37327, 11.174726, 0), Vector(0, 0, 1), 1), math.radians(111.373073), math.radians(210)),
    Part.ArcOfCircle(Part.Circle(Vector(0, 0, 0), Vector(0, 0, 1), 13), math.radians(68.626927), math.radians(111.373073)),
    Part.ArcOfCircle(Part.Circle(Vector(4.37327, 11.174726, 0), Vector(0, 0, 1), 1), math.radians(-30), math.radians(68.626927)),
    Part.LineSegment(Vector(-11.864232, -0.8, 0), Vector(-8.307226, -0.8, 0)),
    Part.ArcOfCircle(Part.Circle(Vector(-8.307226, -1.8, 0), Vector(0, 0, 1), 1), math.radians(12.225789), math.radians(90)),
    Part.ArcOfCircle(Part.Circle(Vector(0, 0, 0), Vector(0, 0, 1), 7.5), math.radians(-167.774211), math.radians(-132.225789)),
    Part.ArcOfCircle(Part.Circle(Vector(-5.712459, -6.294269, 0), Vector(0, 0, 1), 1), math.radians(-30), math.radians(47.774211)),
    Part.LineSegment(Vector(-4.846433, -6.794269, 0), Vector(-6.624936, -9.874726, 0)),
    Part.ArcOfCircle(Part.Circle(Vector(-7.490962, -9.374726, 0), Vector(0, 0, 1), 1), math.radians(-128.626927), math.radians(-30)),
    Part.ArcOfCircle(Part.Circle(Vector(0, 0, 0), Vector(0, 0, 1), 13), math.radians(-171.373073), math.radians(-128.626927)),
    Part.ArcOfCircle(Part.Circle(Vector(-11.864232, -1.8, 0), Vector(0, 0, 1), 1), math.radians(90), math.radians(188.626927)),
    Part.LineSegment(Vector(-8.307226, 0.8, 0), Vector(-11.864232, 0.8, 0)),
    Part.ArcOfCircle(Part.Circle(Vector(-11.864232, 1.8, 0), Vector(0, 0, 1), 1), math.radians(171.373073), math.radians(270)),
    Part.ArcOfCircle(Part.Circle(Vector(0, 0, 0), Vector(0, 0, 1), 13), math.radians(128.626927), math.radians(171.373073)),
    Part.ArcOfCircle(Part.Circle(Vector(-7.490962, 9.374726, 0), Vector(0, 0, 1), 1), math.radians(30), math.radians(128.626927)),
    Part.LineSegment(Vector(-6.624936, 9.874726, 0), Vector(-4.846433, 6.794269, 0)),
    Part.ArcOfCircle(Part.Circle(Vector(-5.712459, 6.294269, 0), Vector(0, 0, 1), 1), math.radians(-47.774211), math.radians(30)),
    Part.ArcOfCircle(Part.Circle(Vector(0, 0, 0), Vector(0, 0, 1), 7.5), math.radians(132.225789), math.radians(167.774211)),
    Part.ArcOfCircle(Part.Circle(Vector(-8.307226, 1.8, 0), Vector(0, 0, 1), 1), math.radians(-90), math.radians(-12.225789)),
], False)
sketch6.addConstraint([
    Sketcher.Constraint("Tangent", 0, 2, 1, 2),
    Sketcher.Constraint("Tangent", 1, 1, 2, 2),
    Sketcher.Constraint("Tangent", 2, 1, 3, 2),
    Sketcher.Constraint("Tangent", 3, 1, 4, 1),
    Sketcher.Constraint("Tangent", 4, 2, 5, 2),
    Sketcher.Constraint("Tangent", 5, 1, 6, 1),
    Sketcher.Constraint("Tangent", 6, 2, 7, 2),
    Sketcher.Constraint("Tangent", 7, 1, 0, 1),
    Sketcher.Constraint("Tangent", 8, 2, 9, 2),
    Sketcher.Constraint("Tangent", 9, 1, 10, 2),
    Sketcher.Constraint("Tangent", 10, 1, 11, 2),
    Sketcher.Constraint("Tangent", 11, 1, 12, 1),
    Sketcher.Constraint("Tangent", 12, 2, 13, 2),
    Sketcher.Constraint("Tangent", 13, 1, 14, 1),
    Sketcher.Constraint("Tangent", 14, 2, 15, 2),
    Sketcher.Constraint("Tangent", 15, 1, 8, 1),
    Sketcher.Constraint("Tangent", 16, 2, 17, 2),
    Sketcher.Constraint("Tangent", 17, 1, 18, 2),
    Sketcher.Constraint("Tangent", 18, 1, 19, 2),
    Sketcher.Constraint("Tangent", 19, 1, 20, 1),
    Sketcher.Constraint("Tangent", 20, 2, 21, 2),
    Sketcher.Constraint("Tangent", 21, 1, 22, 1),
    Sketcher.Constraint("Tangent", 22, 2, 23, 2),
    Sketcher.Constraint("Tangent", 23, 1, 16, 1),
    Sketcher.Constraint("Tangent", 24, 2, 25, 2),
    Sketcher.Constraint("Tangent", 25, 1, 26, 1),
    Sketcher.Constraint("Tangent", 26, 2, 27, 2),
    Sketcher.Constraint("Tangent", 27, 1, 28, 1),
    Sketcher.Constraint("Tangent", 28, 2, 29, 2),
    Sketcher.Constraint("Tangent", 29, 1, 30, 2),
    Sketcher.Constraint("Tangent", 30, 1, 31, 2),
    Sketcher.Constraint("Tangent", 31, 1, 24, 1),
    Sketcher.Constraint("Tangent", 32, 2, 33, 2),
    Sketcher.Constraint("Tangent", 33, 1, 34, 1),
    Sketcher.Constraint("Tangent", 34, 2, 35, 2),
    Sketcher.Constraint("Tangent", 35, 1, 36, 1),
    Sketcher.Constraint("Tangent", 36, 2, 37, 2),
    Sketcher.Constraint("Tangent", 37, 1, 38, 2),
    Sketcher.Constraint("Tangent", 38, 1, 39, 2),
    Sketcher.Constraint("Tangent", 39, 1, 32, 1),
    Sketcher.Constraint("Tangent", 40, 2, 41, 2),
    Sketcher.Constraint("Tangent", 41, 1, 42, 2),
    Sketcher.Constraint("Tangent", 42, 1, 43, 2),
    Sketcher.Constraint("Tangent", 43, 1, 44, 1),
    Sketcher.Constraint("Tangent", 44, 2, 45, 2),
    Sketcher.Constraint("Tangent", 45, 1, 46, 1),
    Sketcher.Constraint("Tangent", 46, 2, 47, 2),
    Sketcher.Constraint("Tangent", 47, 1, 40, 1),
    Sketcher.Constraint("Horizontal", 8),
    Sketcher.Constraint("Horizontal", 20),
    Sketcher.Constraint("Horizontal", 32),
    Sketcher.Constraint("Horizontal", 40),
    Sketcher.Constraint("Coincident", 2, 3, -1, 1),
    Sketcher.Constraint("Coincident", 6, 3, -1, 1),
    Sketcher.Constraint("Coincident", 10, 3, -1, 1),
    Sketcher.Constraint("Coincident", 14, 3, -1, 1),
    Sketcher.Constraint("Coincident", 18, 3, -1, 1),
    Sketcher.Constraint("Coincident", 22, 3, -1, 1),
    Sketcher.Constraint("Coincident", 26, 3, -1, 1),
    Sketcher.Constraint("Coincident", 30, 3, -1, 1),
    Sketcher.Constraint("Coincident", 34, 3, -1, 1),
    Sketcher.Constraint("Coincident", 38, 3, -1, 1),
    Sketcher.Constraint("Coincident", 42, 3, -1, 1),
    Sketcher.Constraint("Coincident", 46, 3, -1, 1),
    Sketcher.Constraint("Equal", 1, 3),
    Sketcher.Constraint("Equal", 3, 5),
    Sketcher.Constraint("Equal", 5, 7),
    Sketcher.Constraint("Equal", 7, 9),
    Sketcher.Constraint("Equal", 2, 10),
    Sketcher.Constraint("Equal", 9, 11),
    Sketcher.Constraint("Equal", 11, 13),
    Sketcher.Constraint("Equal", 6, 14),
    Sketcher.Constraint("Equal", 13, 15),
    Sketcher.Constraint("Equal", 15, 17),
    Sketcher.Constraint("Equal", 10, 18),
    Sketcher.Constraint("Equal", 17, 19),
    Sketcher.Constraint("Equal", 19, 21),
    Sketcher.Constraint("Equal", 14, 22),
    Sketcher.Constraint("Equal", 21, 23),
    Sketcher.Constraint("Equal", 23, 25),
    Sketcher.Constraint("Equal", 22, 26),
    Sketcher.Constraint("Equal", 25, 27),
    Sketcher.Constraint("Equal", 27, 29),
    Sketcher.Constraint("Equal", 18, 30),
    Sketcher.Constraint("Equal", 29, 31),
    Sketcher.Constraint("Equal", 31, 33),
    Sketcher.Constraint("Equal", 26, 34),
    Sketcher.Constraint("Equal", 33, 35),
    Sketcher.Constraint("Equal", 35, 37),
    Sketcher.Constraint("Equal", 30, 38),
    Sketcher.Constraint("Equal", 37, 39),
    Sketcher.Constraint("Equal", 39, 41),
    Sketcher.Constraint("Equal", 38, 42),
    Sketcher.Constraint("Equal", 41, 43),
    Sketcher.Constraint("Equal", 43, 45),
    Sketcher.Constraint("Equal", 34, 46),
    Sketcher.Constraint("Equal", 45, 47),
    Sketcher.Constraint("Symmetric", 4, 2, 24, 2, -1, 1),
    Sketcher.Constraint("Symmetric", 7, 1, 27, 1, -1, 1),
    Sketcher.Constraint("Symmetric", 23, 1, 35, 1, -1, 1),
    Sketcher.Constraint("Symmetric", 11, 1, 43, 1, -1, 1),
    Sketcher.Constraint("Symmetric", 0, 2, 3, 1, -2),
    Sketcher.Constraint("Symmetric", 12, 2, 35, 1, -2),
    Sketcher.Constraint("Parallel", 0, 12),
    Sketcher.Constraint("Horizontal", 15, 3, 33, 3),
    Sketcher.Constraint("Horizontal", 21, 3, 41, 3),
    Sketcher.Constraint("Vertical", 9, 3, 19, 3),
    Sketcher.Constraint("Equal", 4, 12),
    Sketcher.Constraint("Radius", 1, 1.0),
    Sketcher.Constraint("Radius", 2, 13.0),
    Sketcher.Constraint("Radius", 6, 7.5),
    Sketcher.Constraint("Angle", 0, Q("-60 deg")),
    Sketcher.Constraint("DistanceY", 9, 3, -1, 1, 1.8),
    Sketcher.Constraint("DistanceY", 5, 1, -1, 1, 7.142002),
])
sketch6.setExpression("Constraints[108]", "Params.sketch6_radius")
sketch6.setExpression("Constraints[109]", "Params.sketch6_radius2")
sketch6.setExpression("Constraints[110]", "Params.sketch6_radius3")
pocket2 = body.newObject("PartDesign::Pocket", "Pocket001")
pocket2.Profile = sketch6
pocket2.setExpression("Length", "Params.pocket2_length")
pocket2.Reversed = True
body2 = doc.addObject("PartDesign::Body", "Body001")

sketch7 = body2.newObject("Sketcher::SketchObject", "Sketch006")
sketch7.AttachmentSupport = (doc.getObject("YZ_Plane001"), [""])
sketch7.MapMode = "FlatFace"
sketch7.AttachmentOffset = App.Placement(Vector(0, 0, 26.525), App.Rotation())
sketch7.addGeometry(Part.Circle(Vector(4.5, 8, 0), Vector(0, 0, 1), 1.25), False)
sketch7.addConstraint([
    Sketcher.Constraint("Diameter", 0, 2.5),
    Sketcher.Constraint("DistanceY", -1, 1, 0, 3, 8.0),
    Sketcher.Constraint("DistanceX", -1, 1, 0, 3, 4.5),
])
sketch7.setExpression("Constraints[0]", "Params.sketch7_diameter")
pad3 = body2.newObject("PartDesign::Pad", "Pad002")
pad3.Profile = sketch7
pad3.setExpression("Length", "Params.pad3_length")
body3 = doc.addObject("PartDesign::Body", "Body002")

sketch8 = body3.newObject("Sketcher::SketchObject", "Sketch007")
sketch8.AttachmentSupport = (doc.getObject("YZ_Plane002"), [""])
sketch8.MapMode = "FlatFace"
sketch8.AttachmentOffset = App.Placement(Vector(0, 0, 26.525), App.Rotation())
sketch8.addGeometry(Part.Circle(Vector(4.5, -8, 0), Vector(0, 0, 1), 1.25), False)
sketch8.addConstraint([
    Sketcher.Constraint("Diameter", 0, 2.5),
    Sketcher.Constraint("DistanceY", 0, 3, -1, 1, 8.0),
    Sketcher.Constraint("DistanceX", -1, 1, 0, 3, 4.5),
])
sketch8.setExpression("Constraints[0]", "Params.sketch8_diameter")
pad4 = body3.newObject("PartDesign::Pad", "Pad003")
pad4.Profile = sketch8
pad4.setExpression("Length", "Params.pad4_length")
body4 = doc.addObject("PartDesign::Body", "Body003")

sketch9 = body4.newObject("Sketcher::SketchObject", "Sketch008")
sketch9.AttachmentSupport = (doc.getObject("YZ_Plane003"), [""])
sketch9.MapMode = "FlatFace"
sketch9.AttachmentOffset = App.Placement(Vector(0, 0, 26.525), App.Rotation())
sketch9.addGeometry(Part.Circle(Vector(-4.5, -8, 0), Vector(0, 0, 1), 1.25), False)
sketch9.addConstraint([
    Sketcher.Constraint("Diameter", 0, 2.5),
    Sketcher.Constraint("DistanceY", 0, 3, -1, 1, 8.0),
    Sketcher.Constraint("DistanceX", 0, 3, -1, 1, 4.5),
])
sketch9.setExpression("Constraints[0]", "Params.sketch9_diameter")
pad5 = body4.newObject("PartDesign::Pad", "Pad004")
pad5.Profile = sketch9
pad5.setExpression("Length", "Params.pad5_length")
body5 = doc.addObject("PartDesign::Body", "Body004")

sketch10 = body5.newObject("Sketcher::SketchObject", "Sketch009")
sketch10.AttachmentSupport = (doc.getObject("YZ_Plane004"), [""])
sketch10.MapMode = "FlatFace"
sketch10.AttachmentOffset = App.Placement(Vector(0, 0, 26.525), App.Rotation())
sketch10.addGeometry(Part.Circle(Vector(-4.5, 8, 0), Vector(0, 0, 1), 1.25), False)
sketch10.addConstraint([
    Sketcher.Constraint("Diameter", 0, 2.5),
    Sketcher.Constraint("DistanceY", -1, 1, 0, 3, 8.0),
    Sketcher.Constraint("DistanceX", 0, 3, -1, 1, 4.5),
])
sketch10.setExpression("Constraints[0]", "Params.sketch10_diameter")
pad6 = body5.newObject("PartDesign::Pad", "Pad005")
pad6.Profile = sketch10
pad6.setExpression("Length", "Params.pad6_length")

doc.recompute()
